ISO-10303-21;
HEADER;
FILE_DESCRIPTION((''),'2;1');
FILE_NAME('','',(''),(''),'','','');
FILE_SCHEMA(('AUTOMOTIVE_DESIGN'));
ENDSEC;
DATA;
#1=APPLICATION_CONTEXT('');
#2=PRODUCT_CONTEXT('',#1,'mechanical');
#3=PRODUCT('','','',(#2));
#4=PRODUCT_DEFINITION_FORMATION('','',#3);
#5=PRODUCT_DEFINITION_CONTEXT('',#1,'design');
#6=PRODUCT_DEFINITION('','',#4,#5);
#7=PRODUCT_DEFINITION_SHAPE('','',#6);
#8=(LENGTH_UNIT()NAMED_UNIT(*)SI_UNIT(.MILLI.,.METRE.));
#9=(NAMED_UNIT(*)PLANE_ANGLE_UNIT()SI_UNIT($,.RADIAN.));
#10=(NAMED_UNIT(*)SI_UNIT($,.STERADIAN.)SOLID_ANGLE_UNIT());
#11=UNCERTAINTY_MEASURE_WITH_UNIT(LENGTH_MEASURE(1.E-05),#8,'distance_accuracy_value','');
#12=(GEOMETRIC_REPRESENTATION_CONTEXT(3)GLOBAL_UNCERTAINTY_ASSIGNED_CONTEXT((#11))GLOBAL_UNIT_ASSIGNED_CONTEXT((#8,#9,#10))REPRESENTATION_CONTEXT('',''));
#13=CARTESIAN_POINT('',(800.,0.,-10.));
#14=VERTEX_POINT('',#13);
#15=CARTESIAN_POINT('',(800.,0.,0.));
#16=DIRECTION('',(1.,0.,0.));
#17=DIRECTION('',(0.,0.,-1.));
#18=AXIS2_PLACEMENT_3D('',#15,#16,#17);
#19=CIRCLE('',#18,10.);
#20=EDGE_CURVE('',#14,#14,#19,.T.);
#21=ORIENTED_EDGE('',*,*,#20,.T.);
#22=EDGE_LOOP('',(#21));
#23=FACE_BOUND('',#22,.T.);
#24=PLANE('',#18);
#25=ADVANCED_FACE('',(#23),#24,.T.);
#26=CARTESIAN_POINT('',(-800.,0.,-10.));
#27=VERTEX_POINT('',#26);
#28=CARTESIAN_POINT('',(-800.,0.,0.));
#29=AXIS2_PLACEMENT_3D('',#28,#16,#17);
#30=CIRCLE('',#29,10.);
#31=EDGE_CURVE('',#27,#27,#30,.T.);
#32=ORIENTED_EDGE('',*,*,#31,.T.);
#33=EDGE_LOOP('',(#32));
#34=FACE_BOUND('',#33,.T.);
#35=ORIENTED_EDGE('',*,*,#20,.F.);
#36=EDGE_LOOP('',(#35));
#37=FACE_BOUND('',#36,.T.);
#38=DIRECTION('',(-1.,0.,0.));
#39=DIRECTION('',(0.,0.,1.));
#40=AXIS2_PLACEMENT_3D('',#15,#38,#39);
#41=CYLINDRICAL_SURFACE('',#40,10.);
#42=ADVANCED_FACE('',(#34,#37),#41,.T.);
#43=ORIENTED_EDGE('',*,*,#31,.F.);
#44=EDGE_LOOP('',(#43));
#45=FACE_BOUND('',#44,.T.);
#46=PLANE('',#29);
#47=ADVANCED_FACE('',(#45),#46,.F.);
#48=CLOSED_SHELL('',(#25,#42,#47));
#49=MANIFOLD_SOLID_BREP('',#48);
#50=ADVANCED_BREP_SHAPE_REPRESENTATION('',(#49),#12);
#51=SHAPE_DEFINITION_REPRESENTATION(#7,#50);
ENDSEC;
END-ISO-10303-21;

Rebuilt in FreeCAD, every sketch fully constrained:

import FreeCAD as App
import Part
import Sketcher

V = App.Vector
Q = App.Units.Quantity

doc = App.newDocument("Part")
params = doc.addObject("Spreadsheet::Sheet", "Params")
for row, (alias, value) in enumerate([
    ("sketch1_diameter", "20 mm"),
    ("pad1_length", "1600 mm"),
], start=1):
    params.set(f"A{row}", alias)
    params.set(f"B{row}", "=" + value)
    params.setAlias(f"B{row}", alias)

body = doc.addObject("PartDesign::Body", "Body")

sketch1 = body.newObject("Sketcher::SketchObject", "Sketch")
sketch1.AttachmentSupport = (doc.getObject("YZ_Plane"), [""])
sketch1.MapMode = "FlatFace"
sketch1.addGeometry(Part.Circle(V(0, 0, 0), V(0, 0, 1), 10), False)
sketch1.addConstraint(Sketcher.Constraint("Coincident", 0, 3, -1, 1))
sketch1.addConstraint(Sketcher.Constraint("Diameter", 0, Q("20 mm")))
sketch1.setExpression("Constraints[1]", "Params.sketch1_diameter")
pad1 = body.newObject("PartDesign::Pad", "Pad")
pad1.Profile = sketch1
pad1.setExpression("Length", "Params.pad1_length")
pad1.Midplane = True

doc.recompute()
